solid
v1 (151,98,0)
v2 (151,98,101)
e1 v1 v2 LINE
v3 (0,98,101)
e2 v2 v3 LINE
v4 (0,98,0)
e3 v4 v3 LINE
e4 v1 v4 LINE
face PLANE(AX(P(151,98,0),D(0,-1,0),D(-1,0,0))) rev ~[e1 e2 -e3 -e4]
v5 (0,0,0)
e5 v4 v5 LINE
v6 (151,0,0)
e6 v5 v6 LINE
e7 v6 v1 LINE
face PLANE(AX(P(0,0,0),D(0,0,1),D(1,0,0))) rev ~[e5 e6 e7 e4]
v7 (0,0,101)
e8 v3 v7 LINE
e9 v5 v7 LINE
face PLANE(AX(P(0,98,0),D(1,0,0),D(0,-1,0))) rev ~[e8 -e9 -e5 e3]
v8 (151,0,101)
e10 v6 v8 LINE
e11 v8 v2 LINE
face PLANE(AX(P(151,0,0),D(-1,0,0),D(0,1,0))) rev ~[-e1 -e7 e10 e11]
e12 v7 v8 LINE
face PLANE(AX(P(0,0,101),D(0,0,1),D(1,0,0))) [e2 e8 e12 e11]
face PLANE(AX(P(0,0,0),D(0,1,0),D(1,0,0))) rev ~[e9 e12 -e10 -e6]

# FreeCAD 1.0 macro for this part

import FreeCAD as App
import Part
import Sketcher
from FreeCAD import Vector
Q = App.Units.Quantity


def add_polygon(sketch, points):
    """Adds a closed chain of lines whose ends are joined by coincident constraints."""
    first, n = sketch.GeometryCount, len(points)
    for a, b in zip(points, points[1:] + points[:1]):
        sketch.addGeometry(Part.LineSegment(App.Vector(*a, 0), App.Vector(*b, 0)), False)
    for i in range(n):
        sketch.addConstraint(Sketcher.Constraint("Coincident", first + i, 2, first + (i + 1) % n, 1))

doc = App.newDocument("Part")
params = doc.addObject("Spreadsheet::Sheet", "Params")
for row, (alias, value) in enumerate([
    ("sketch1_width", "151 mm"),
    ("sketch1_height", "98 mm"),
    ("pad1_length", "101 mm"),
], start=1):
    params.set(f"A{row}", alias)
    params.set(f"B{row}", "=" + value)
    params.setAlias(f"B{row}", alias)

body = doc.addObject("PartDesign::Body", "Body")

# Sketch on XY plane
sketch1 = body.newObject("Sketcher::SketchObject", "Sketch")
sketch1.AttachmentSupport = (doc.getObject("XY_Plane"), [""])
sketch1.MapMode = "FlatFace"
add_polygon(sketch1, [(0, 98), (0, 0), (151, 0), (151, 98)])  # lines 0-3
sketch1.addConstraint([
    Sketcher.Constraint("Vertical", 0),
    Sketcher.Constraint("Horizontal", 1),
    Sketcher.Constraint("Vertical", 2),
    Sketcher.Constraint("Horizontal", 3),
    Sketcher.Constraint("Coincident", 0, 2, -1, 1),
    Sketcher.Constraint("DistanceX", 1, 1, 1, 2, Q("151 mm")),
    Sketcher.Constraint("DistanceY", 0, 2, 0, 1, Q("98 mm")),
])
sketch1.setExpression("Constraints[9]", "Params.sketch1_width")
sketch1.setExpression("Constraints[10]", "Params.sketch1_height")
pad1 = body.newObject("PartDesign::Pad", "Pad")
pad1.Profile = sketch1
pad1.setExpression("Length", "Params.pad1_length")

doc.recompute()
